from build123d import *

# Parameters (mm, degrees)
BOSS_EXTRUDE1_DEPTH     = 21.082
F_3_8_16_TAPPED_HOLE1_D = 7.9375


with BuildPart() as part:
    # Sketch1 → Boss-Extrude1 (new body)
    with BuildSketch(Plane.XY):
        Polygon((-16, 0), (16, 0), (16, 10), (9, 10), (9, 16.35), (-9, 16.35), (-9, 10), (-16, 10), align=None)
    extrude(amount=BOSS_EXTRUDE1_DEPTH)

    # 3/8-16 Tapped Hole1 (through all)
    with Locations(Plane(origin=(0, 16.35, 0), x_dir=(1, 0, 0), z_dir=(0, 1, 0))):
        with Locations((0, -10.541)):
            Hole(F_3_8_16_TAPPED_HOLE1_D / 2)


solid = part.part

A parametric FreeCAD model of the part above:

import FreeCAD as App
import Part
import Sketcher

doc = App.newDocument("Part")
body = doc.addObject("PartDesign::Body", "Body")

# Sketch on XY plane
sketch1 = doc.addObject("Sketcher::SketchObject", "Sketch")
body.addObject(sketch1)
sketch1.AttachmentSupport = (doc.XY_Plane, [""])
sketch1.MapMode = "FlatFace"
sketch1.addGeometry([
    Part.LineSegment(App.Vector(-16, 0, 0), App.Vector(16, 0, 0)),  # 0
    Part.LineSegment(App.Vector(16, 0, 0), App.Vector(16, 10, 0)),  # 1
    Part.LineSegment(App.Vector(16, 10, 0), App.Vector(9, 10, 0)),  # 2
    Part.LineSegment(App.Vector(9, 10, 0), App.Vector(9, 16, 0)),  # 3
    Part.LineSegment(App.Vector(9, 16, 0), App.Vector(-9, 16, 0)),  # 4
    Part.LineSegment(App.Vector(-9, 16, 0), App.Vector(-9, 10, 0)),  # 5
    Part.LineSegment(App.Vector(-9, 10, 0), App.Vector(-16, 10, 0)),  # 6
    Part.LineSegment(App.Vector(-16, 10, 0), App.Vector(-16, 0, 0)),  # 7
], False)
sketch1.addConstraint([
    Sketcher.Constraint("Coincident", 0, 2, 1, 1),
    Sketcher.Constraint("Coincident", 1, 2, 2, 1),
    Sketcher.Constraint("Coincident", 2, 2, 3, 1),
    Sketcher.Constraint("Coincident", 3, 2, 4, 1),
    Sketcher.Constraint("Coincident", 4, 2, 5, 1),
    Sketcher.Constraint("Coincident", 5, 2, 6, 1),
    Sketcher.Constraint("Coincident", 6, 2, 7, 1),
    Sketcher.Constraint("Coincident", 7, 2, 0, 1),
    Sketcher.Constraint("Horizontal", 0),
    Sketcher.Constraint("Vertical", 1),
    Sketcher.Constraint("Horizontal", 2),
    Sketcher.Constraint("Vertical", 3),
    Sketcher.Constraint("Horizontal", 4),
    Sketcher.Constraint("Vertical", 5),
    Sketcher.Constraint("Horizontal", 6),
    Sketcher.Constraint("Vertical", 7),
    Sketcher.Constraint("Symmetric", 0, 2, 7, 2, -1, 1),
    Sketcher.Constraint("Symmetric", 2, 2, 5, 2, -2),
    Sketcher.Constraint("DistanceX", 0, 1, 0, 2, 32.0),
    Sketcher.Constraint("DistanceX", 2, 2, 2, 1, 7.0),
    Sketcher.Constraint("DistanceY", 1, 1, 1, 2, 10.0),
    Sketcher.Constraint("DistanceY", 3, 1, 3, 2, 6.35),
])
pad1 = doc.addObject("PartDesign::Pad", "Pad")
body.addObject(pad1)
pad1.Profile = sketch1
pad1.Length = 21.082

# Sketch on XZ plane
sketch2 = doc.addObject("Sketcher::SketchObject", "Sketch001")
body.addObject(sketch2)
sketch2.AttachmentSupport = (doc.XZ_Plane, [""])
sketch2.MapMode = "FlatFace"
sketch2.AttachmentOffset = App.Placement(App.Vector(0, 0, -16.35), App.Rotation())
sketch2.addGeometry(Part.Circle(App.Vector(0, 10.5, 0), App.Vector(0, 0, 1), 4), False)
sketch2.addConstraint([
    Sketcher.Constraint("PointOnObject", 0, 3, -2),
    Sketcher.Constraint("Diameter", 0, 7.9375),
    Sketcher.Constraint("DistanceY", -1, 1, 0, 3, 10.541),
])
doc.recompute()
hole = doc.addObject("PartDesign::Hole", "Hole")
body.addObject(hole)
hole.Profile = sketch2
hole.ThreadType = "None"
hole.Diameter = 7.9375
hole.DepthType = "ThroughAll"
hole.Reversed = True

doc.recompute()
